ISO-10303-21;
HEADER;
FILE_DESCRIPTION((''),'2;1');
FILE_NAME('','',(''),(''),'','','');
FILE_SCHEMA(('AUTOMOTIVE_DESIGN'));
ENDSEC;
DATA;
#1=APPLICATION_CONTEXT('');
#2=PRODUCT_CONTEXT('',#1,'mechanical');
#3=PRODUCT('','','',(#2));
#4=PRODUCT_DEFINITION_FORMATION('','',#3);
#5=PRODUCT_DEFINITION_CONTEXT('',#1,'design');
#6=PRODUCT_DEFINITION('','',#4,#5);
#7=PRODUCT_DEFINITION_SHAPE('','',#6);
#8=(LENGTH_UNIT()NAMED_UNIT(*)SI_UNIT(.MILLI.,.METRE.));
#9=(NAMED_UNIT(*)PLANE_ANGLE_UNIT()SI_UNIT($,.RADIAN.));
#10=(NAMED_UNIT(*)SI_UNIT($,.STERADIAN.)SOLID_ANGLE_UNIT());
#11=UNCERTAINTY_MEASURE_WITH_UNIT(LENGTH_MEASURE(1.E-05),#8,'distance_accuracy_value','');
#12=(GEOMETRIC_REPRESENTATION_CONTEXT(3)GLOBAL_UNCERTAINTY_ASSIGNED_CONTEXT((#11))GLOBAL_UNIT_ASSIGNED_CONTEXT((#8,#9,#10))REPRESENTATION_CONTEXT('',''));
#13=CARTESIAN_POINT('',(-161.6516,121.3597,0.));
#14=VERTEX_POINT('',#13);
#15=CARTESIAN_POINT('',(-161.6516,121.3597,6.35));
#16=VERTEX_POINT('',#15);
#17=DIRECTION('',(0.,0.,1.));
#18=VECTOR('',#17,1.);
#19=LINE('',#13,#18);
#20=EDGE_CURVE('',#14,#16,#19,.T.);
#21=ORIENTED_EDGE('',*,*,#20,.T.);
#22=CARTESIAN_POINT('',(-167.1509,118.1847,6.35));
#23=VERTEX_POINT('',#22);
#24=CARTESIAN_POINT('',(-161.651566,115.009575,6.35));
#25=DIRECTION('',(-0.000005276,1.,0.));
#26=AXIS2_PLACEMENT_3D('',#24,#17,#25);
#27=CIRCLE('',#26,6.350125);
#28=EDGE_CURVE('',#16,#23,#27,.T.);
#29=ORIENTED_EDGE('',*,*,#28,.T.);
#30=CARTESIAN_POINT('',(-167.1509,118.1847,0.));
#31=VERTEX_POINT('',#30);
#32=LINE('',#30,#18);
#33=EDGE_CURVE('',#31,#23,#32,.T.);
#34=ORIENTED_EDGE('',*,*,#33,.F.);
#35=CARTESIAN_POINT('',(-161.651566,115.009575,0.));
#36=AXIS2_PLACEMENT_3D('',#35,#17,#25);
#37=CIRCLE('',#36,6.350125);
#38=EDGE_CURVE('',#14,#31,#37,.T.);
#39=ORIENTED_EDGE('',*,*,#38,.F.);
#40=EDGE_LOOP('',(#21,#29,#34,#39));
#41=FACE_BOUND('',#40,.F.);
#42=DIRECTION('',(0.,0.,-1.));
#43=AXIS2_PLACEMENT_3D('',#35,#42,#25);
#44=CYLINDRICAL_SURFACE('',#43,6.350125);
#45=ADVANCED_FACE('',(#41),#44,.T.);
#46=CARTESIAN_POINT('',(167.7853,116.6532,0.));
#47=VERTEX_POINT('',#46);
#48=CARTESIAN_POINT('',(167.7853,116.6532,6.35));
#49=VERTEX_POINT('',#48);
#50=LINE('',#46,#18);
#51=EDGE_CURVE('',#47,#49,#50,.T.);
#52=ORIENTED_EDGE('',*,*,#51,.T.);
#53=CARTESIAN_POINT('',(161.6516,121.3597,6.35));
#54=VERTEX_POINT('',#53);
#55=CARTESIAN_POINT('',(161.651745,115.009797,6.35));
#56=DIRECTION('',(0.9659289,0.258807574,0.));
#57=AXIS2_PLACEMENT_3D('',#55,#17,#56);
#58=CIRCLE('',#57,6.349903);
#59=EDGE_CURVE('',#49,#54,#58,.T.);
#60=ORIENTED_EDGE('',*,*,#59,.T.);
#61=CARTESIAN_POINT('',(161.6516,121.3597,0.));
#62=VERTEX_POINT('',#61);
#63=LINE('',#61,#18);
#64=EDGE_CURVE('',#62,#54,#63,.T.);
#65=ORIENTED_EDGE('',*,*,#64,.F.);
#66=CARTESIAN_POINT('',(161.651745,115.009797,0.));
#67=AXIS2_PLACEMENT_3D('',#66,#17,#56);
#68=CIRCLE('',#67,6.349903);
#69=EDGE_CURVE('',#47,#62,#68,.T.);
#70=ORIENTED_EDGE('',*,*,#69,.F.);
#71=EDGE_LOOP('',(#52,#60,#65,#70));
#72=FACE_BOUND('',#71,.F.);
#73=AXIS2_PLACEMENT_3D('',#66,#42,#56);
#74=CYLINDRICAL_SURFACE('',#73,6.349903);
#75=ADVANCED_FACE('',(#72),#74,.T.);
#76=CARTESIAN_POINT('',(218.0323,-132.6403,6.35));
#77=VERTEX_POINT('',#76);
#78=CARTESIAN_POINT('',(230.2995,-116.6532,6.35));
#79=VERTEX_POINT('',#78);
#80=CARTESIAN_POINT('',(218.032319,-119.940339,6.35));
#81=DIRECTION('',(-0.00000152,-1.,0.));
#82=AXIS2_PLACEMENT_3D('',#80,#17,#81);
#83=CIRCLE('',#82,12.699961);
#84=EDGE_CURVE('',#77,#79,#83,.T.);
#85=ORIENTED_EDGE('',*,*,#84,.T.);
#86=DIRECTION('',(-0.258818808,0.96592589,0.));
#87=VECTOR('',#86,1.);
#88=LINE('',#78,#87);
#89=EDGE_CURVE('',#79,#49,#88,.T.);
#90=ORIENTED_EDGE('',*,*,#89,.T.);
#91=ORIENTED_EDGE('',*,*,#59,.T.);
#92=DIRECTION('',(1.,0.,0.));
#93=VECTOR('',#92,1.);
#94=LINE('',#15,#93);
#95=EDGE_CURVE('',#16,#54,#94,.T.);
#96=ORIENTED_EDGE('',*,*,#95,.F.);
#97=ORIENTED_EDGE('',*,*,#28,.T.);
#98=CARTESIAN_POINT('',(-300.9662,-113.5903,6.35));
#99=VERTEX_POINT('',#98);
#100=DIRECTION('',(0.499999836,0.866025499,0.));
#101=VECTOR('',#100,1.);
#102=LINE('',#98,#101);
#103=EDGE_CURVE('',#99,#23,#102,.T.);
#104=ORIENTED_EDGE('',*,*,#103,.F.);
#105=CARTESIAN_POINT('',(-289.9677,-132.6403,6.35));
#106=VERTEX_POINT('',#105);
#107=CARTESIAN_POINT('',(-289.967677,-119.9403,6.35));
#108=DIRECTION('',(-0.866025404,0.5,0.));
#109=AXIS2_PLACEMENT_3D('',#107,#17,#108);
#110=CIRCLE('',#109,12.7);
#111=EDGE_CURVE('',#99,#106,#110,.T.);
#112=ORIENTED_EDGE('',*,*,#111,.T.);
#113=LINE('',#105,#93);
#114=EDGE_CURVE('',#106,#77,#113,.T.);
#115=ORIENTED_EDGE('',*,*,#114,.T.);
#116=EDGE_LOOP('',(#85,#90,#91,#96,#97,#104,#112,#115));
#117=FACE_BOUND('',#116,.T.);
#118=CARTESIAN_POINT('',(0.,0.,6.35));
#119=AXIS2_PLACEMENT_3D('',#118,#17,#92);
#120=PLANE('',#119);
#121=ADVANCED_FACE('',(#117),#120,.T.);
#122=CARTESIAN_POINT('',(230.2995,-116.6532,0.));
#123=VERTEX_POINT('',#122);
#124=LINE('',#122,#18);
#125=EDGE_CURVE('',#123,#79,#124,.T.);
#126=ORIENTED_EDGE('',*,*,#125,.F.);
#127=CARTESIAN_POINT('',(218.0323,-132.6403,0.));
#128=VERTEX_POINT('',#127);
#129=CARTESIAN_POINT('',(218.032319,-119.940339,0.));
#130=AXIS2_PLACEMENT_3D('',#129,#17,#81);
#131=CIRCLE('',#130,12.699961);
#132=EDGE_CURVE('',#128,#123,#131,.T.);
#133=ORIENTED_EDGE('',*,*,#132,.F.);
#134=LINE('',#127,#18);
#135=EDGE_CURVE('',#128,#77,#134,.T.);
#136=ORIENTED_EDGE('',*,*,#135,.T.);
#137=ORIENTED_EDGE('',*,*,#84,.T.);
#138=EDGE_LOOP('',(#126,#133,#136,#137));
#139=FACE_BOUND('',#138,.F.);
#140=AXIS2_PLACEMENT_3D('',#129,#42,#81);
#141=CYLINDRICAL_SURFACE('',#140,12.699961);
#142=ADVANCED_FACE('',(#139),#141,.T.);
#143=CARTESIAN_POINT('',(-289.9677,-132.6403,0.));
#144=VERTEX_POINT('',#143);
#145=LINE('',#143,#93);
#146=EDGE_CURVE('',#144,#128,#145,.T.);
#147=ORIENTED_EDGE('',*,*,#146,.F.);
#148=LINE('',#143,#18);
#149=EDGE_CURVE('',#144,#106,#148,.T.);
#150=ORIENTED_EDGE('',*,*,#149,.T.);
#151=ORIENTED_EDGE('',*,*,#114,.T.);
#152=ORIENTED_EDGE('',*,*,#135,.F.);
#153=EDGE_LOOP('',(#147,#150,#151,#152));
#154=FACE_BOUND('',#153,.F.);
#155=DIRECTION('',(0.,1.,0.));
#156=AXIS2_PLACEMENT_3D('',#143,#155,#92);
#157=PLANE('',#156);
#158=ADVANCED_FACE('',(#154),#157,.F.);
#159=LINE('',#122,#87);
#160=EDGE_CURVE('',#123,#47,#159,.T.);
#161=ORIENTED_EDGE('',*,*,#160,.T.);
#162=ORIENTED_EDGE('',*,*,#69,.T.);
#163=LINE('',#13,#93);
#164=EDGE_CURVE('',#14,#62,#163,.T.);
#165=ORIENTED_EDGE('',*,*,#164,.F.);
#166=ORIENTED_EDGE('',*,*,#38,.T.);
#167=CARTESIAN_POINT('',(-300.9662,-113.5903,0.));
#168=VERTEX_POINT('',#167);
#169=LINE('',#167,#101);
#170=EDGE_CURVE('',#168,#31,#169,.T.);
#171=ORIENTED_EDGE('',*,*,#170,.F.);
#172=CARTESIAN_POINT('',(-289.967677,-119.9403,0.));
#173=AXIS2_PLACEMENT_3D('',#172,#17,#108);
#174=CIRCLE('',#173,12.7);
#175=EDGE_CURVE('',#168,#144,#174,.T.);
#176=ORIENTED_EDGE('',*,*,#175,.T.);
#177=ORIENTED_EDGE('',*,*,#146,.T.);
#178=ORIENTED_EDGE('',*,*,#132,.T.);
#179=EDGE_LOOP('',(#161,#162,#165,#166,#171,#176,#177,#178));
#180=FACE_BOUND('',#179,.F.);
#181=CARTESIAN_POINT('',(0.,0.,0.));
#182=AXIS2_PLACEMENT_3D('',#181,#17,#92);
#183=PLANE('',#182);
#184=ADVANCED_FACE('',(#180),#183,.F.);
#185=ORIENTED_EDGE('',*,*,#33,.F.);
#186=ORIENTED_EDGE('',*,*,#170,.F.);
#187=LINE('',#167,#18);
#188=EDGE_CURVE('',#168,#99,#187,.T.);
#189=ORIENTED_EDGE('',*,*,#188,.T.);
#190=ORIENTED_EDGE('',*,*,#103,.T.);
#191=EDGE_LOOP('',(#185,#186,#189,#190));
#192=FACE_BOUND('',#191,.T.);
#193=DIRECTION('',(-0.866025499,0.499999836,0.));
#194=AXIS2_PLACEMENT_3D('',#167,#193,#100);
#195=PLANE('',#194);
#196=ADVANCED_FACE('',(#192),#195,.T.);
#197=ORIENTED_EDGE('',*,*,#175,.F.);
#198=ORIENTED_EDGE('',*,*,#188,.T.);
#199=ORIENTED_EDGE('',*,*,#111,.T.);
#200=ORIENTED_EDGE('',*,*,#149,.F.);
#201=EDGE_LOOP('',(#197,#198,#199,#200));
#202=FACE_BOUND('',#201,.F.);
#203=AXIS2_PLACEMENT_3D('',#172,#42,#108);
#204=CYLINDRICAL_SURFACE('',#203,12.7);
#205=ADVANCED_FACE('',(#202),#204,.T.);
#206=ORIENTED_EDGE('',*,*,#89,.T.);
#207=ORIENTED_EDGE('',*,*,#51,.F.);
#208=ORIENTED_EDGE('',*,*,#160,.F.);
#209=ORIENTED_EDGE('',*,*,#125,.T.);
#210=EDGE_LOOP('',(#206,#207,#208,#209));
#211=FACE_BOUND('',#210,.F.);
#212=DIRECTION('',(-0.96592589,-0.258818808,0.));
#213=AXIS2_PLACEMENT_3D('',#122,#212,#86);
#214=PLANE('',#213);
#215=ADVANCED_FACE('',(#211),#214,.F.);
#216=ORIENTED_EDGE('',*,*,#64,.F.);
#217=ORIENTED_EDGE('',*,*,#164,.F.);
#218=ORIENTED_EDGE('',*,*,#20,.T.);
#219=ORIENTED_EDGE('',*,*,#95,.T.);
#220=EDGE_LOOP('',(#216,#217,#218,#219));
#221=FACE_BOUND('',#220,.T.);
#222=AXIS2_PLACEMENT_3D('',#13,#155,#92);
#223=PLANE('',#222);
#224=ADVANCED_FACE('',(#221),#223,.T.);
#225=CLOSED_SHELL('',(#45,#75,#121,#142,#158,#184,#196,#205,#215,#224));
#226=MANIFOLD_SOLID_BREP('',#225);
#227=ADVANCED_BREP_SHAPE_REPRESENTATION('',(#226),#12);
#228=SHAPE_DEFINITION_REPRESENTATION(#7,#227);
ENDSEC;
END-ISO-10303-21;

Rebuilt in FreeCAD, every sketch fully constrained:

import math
import FreeCAD as App
import Part
import Sketcher
Q = App.Units.Quantity

doc = App.newDocument("Part")
body = doc.addObject("PartDesign::Body", "Body")

sketch1 = body.newObject("Sketcher::SketchObject", "Sketch")
sketch1.AttachmentSupport = (doc.getObject("XY_Plane"), [""])
sketch1.MapMode = "FlatFace"
sketch1.addGeometry([
    Part.ArcOfCircle(Part.Circle(App.Vector(-289.9677, -119.9403, 0), App.Vector(0, 0, 1), 12.69998), math.radians(149.999949), math.radians(270)),
    Part.LineSegment(App.Vector(-289.9677, -132.6403, 0), App.Vector(218.0323, -132.6403, 0)),
    Part.ArcOfCircle(Part.Circle(App.Vector(218.0323, -119.9403, 0), App.Vector(0, 0, 1), 12.7), math.radians(-90), math.radians(15.000495)),
    Part.LineSegment(App.Vector(230.2995, -116.6532, 0), App.Vector(167.7853, 116.6532, 0)),
    Part.ArcOfCircle(Part.Circle(App.Vector(161.6516, 115.0097, 0), App.Vector(0, 0, 1), 6.350068), math.radians(14.999826), math.radians(90)),
    Part.LineSegment(App.Vector(161.6516, 121.3597, 0), App.Vector(-161.6516, 121.3597, 0)),
    Part.ArcOfCircle(Part.Circle(App.Vector(-161.6516, 115.0097, 0), App.Vector(0, 0, 1), 6.35), math.radians(90), math.radians(150.000175)),
    Part.LineSegment(App.Vector(-167.1509, 118.1847, 0), App.Vector(-300.9662, -113.5903, 0)),
], False)
sketch1.addConstraint([
    Sketcher.Constraint("Tangent", 0, 2, 1, 1),
    Sketcher.Constraint("Tangent", 1, 2, 2, 1),
    Sketcher.Constraint("Tangent", 2, 2, 3, 1),
    Sketcher.Constraint("Tangent", 3, 2, 4, 1),
    Sketcher.Constraint("Tangent", 4, 2, 5, 1),
    Sketcher.Constraint("Tangent", 5, 2, 6, 1),
    Sketcher.Constraint("Tangent", 6, 2, 7, 1),
    Sketcher.Constraint("Tangent", 7, 2, 0, 1),
    Sketcher.Constraint("Horizontal", 1),
    Sketcher.Constraint("Horizontal", 5),
    Sketcher.Constraint("Equal", 0, 2),
    Sketcher.Constraint("Equal", 4, 6),
    Sketcher.Constraint("Radius", 0, Q("0.5 in")),
    Sketcher.Constraint("DistanceX", 1, 1, 1, 2, Q("20 in")),
    Sketcher.Constraint("Radius", 4, Q("0.25 in")),
    Sketcher.Constraint("DistanceY", 1, 2, 4, 2, Q("10 in")),
    Sketcher.Constraint("DistanceY", 0, 3, 7, 2, Q("0.25 in")),
    Sketcher.Constraint("Angle", 3, Q("105 deg")),
    Sketcher.Constraint("DistanceX", -1, 1, 2, 2, Q("9.0669 in")),
    Sketcher.Constraint("DistanceY", 0, 3, -1, 1, 119.9403),
])
pad1 = body.newObject("PartDesign::Pad", "Pad")
pad1.Profile = sketch1
pad1.Length = Q("0.25 in")

doc.recompute()
